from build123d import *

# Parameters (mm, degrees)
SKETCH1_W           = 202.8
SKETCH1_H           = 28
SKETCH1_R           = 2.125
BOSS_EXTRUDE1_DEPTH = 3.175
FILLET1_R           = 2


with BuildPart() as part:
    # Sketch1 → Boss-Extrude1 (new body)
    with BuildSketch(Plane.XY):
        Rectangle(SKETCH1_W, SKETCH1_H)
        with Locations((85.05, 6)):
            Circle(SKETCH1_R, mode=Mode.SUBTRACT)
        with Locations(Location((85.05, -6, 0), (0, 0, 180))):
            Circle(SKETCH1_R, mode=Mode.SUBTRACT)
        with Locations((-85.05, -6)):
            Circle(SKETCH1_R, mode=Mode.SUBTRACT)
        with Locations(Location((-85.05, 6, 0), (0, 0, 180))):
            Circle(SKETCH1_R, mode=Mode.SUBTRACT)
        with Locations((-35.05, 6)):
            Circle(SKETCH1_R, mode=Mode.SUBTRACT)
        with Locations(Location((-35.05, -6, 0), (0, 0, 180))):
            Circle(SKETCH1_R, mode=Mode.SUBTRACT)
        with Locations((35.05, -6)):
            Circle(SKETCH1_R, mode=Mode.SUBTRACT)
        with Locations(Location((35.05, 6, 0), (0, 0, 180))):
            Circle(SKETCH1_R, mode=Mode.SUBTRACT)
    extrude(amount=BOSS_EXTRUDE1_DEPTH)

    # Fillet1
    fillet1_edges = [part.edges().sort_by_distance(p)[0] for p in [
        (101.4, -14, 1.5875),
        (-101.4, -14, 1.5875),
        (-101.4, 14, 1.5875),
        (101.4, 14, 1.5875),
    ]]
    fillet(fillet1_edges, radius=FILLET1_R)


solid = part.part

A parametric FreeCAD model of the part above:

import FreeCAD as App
import Part
import Sketcher
from FreeCAD import Vector


def edges_at(feature, points):
    """Names of the edges that pass closest to the given points."""
    edges = feature.Shape.Edges
    near = lambda p: min(range(len(edges)), key=lambda i: edges[i].distToShape(Part.Vertex(*p))[0])
    return sorted({f"Edge{near(p) + 1}" for p in points})

doc = App.newDocument("Part")
body = doc.addObject("PartDesign::Body", "Body")

# Sketch on XY plane
sketch1 = doc.addObject("Sketcher::SketchObject", "Sketch")
body.addObject(sketch1)
sketch1.AttachmentSupport = (doc.XY_Plane, [""])
sketch1.MapMode = "FlatFace"
sketch1.addGeometry(Part.LineSegment(Vector(-101.4, 14, 0), Vector(-101.4, -14, 0)), False)
sketch1.addGeometry(Part.LineSegment(Vector(-101.4, -14, 0), Vector(101.4, -14, 0)), False)
sketch1.addGeometry(Part.LineSegment(Vector(101.4, -14, 0), Vector(101.4, 14, 0)), False)
sketch1.addGeometry(Part.LineSegment(Vector(101.4, 14, 0), Vector(-101.4, 14, 0)), False)
sketch1.addGeometry(Part.Circle(Vector(-85.05, -6, 0), Vector(0, 0, 1), 2.125), False)
sketch1.addGeometry(Part.Circle(Vector(-35.05, -6, 0), Vector(0, 0, 1), 2.125), False)
sketch1.addGeometry(Part.Circle(Vector(35.05, -6, 0), Vector(0, 0, 1), 2.125), False)
sketch1.addGeometry(Part.Circle(Vector(85.05, -6, 0), Vector(0, 0, 1), 2.125), False)
sketch1.addGeometry(Part.Circle(Vector(-85.05, 6, 0), Vector(0, 0, 1), 2.125), False)
sketch1.addGeometry(Part.Circle(Vector(-35.05, 6, 0), Vector(0, 0, 1), 2.125), False)
sketch1.addGeometry(Part.Circle(Vector(35.05, 6, 0), Vector(0, 0, 1), 2.125), False)
sketch1.addGeometry(Part.Circle(Vector(85.05, 6, 0), Vector(0, 0, 1), 2.125), False)
sketch1.addConstraint(Sketcher.Constraint("Coincident", 0, 2, 1, 1))
sketch1.addConstraint(Sketcher.Constraint("Coincident", 1, 2, 2, 1))
sketch1.addConstraint(Sketcher.Constraint("Coincident", 2, 2, 3, 1))
sketch1.addConstraint(Sketcher.Constraint("Coincident", 3, 2, 0, 1))
sketch1.addConstraint(Sketcher.Constraint("Vertical", 0))
sketch1.addConstraint(Sketcher.Constraint("Horizontal", 1))
sketch1.addConstraint(Sketcher.Constraint("Vertical", 2))
sketch1.addConstraint(Sketcher.Constraint("Horizontal", 3))
sketch1.addConstraint(Sketcher.Constraint("Equal", 4, 5))
sketch1.addConstraint(Sketcher.Constraint("Equal", 5, 6))
sketch1.addConstraint(Sketcher.Constraint("Equal", 6, 7))
sketch1.addConstraint(Sketcher.Constraint("Equal", 7, 8))
sketch1.addConstraint(Sketcher.Constraint("Equal", 8, 9))
sketch1.addConstraint(Sketcher.Constraint("Equal", 9, 10))
sketch1.addConstraint(Sketcher.Constraint("Equal", 10, 11))
sketch1.addConstraint(Sketcher.Constraint("Symmetric", 7, 3, 8, 3, -1, 1))
sketch1.addConstraint(Sketcher.Constraint("Symmetric", 6, 3, 9, 3, -1, 1))
sketch1.addConstraint(Sketcher.Constraint("Symmetric", 5, 3, 10, 3, -1, 1))
sketch1.addConstraint(Sketcher.Constraint("Symmetric", 4, 3, 11, 3, -1, 1))
sketch1.addConstraint(Sketcher.Constraint("Symmetric", 0, 2, 2, 2, -1, 1))
sketch1.addConstraint(Sketcher.Constraint("Symmetric", 5, 3, 6, 3, -2))
sketch1.addConstraint(Sketcher.Constraint("Symmetric", 4, 3, 7, 3, -2))
sketch1.addConstraint(Sketcher.Constraint("Horizontal", 4, 3, 5, 3))
sketch1.addConstraint(Sketcher.Constraint("Diameter", 4, 4.25))
sketch1.addConstraint(Sketcher.Constraint("DistanceY", 0, 2, 0, 1, 28.0))
sketch1.addConstraint(Sketcher.Constraint("DistanceX", 1, 1, 1, 2, 202.8))
sketch1.addConstraint(Sketcher.Constraint("DistanceY", 4, 3, -1, 1, 6.0))
sketch1.addConstraint(Sketcher.Constraint("DistanceX", 4, 3, 5, 3, 50.0))
sketch1.addConstraint(Sketcher.Constraint("DistanceX", 5, 3, 6, 3, 70.1))
pad1 = doc.addObject("PartDesign::Pad", "Pad")
body.addObject(pad1)
pad1.Profile = sketch1
pad1.Length = 3.175
doc.recompute()

fillet = doc.addObject("PartDesign::Fillet", "Fillet")
body.addObject(fillet)
fillet.Base = (pad1, edges_at(pad1, [
    (101.4, -14, 1.587),
    (-101.4, -14, 1.587),
    (-101.4, 14, 1.587),
    (101.4, 14, 1.587),
]))
fillet.Radius = 2

doc.recompute()
